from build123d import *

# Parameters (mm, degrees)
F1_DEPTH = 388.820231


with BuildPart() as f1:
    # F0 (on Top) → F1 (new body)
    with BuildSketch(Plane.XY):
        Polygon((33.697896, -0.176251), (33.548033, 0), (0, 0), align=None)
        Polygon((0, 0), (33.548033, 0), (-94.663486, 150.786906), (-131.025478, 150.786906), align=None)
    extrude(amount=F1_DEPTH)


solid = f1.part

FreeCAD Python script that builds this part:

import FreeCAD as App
import Part
import Sketcher

V = App.Vector
Q = App.Units.Quantity

doc = App.newDocument("Part")
params = doc.addObject("Spreadsheet::Sheet", "Params")
for row, (alias, value) in enumerate([
    ("pad1_length", "388.820231 mm"),
], start=1):
    params.set(f"A{row}", alias)
    params.set(f"B{row}", "=" + value)
    params.setAlias(f"B{row}", alias)

body = doc.addObject("PartDesign::Body", "Body")

# Sketch on XY plane
sketch1 = body.newObject("Sketcher::SketchObject", "Sketch")
sketch1.AttachmentSupport = (doc.getObject("XY_Plane"), [""])
sketch1.MapMode = "FlatFace"
sketch1.addGeometry(Part.LineSegment(V(33.697896, -0.176251, 0), V(33.548033, 0, 0)), False)
sketch1.addGeometry(Part.LineSegment(V(33.548033, 0, 0), V(-94.663486, 150.786906, 0)), False)
sketch1.addGeometry(Part.LineSegment(V(-94.663486, 150.786906, 0), V(-131.025478, 150.786906, 0)), False)
sketch1.addGeometry(Part.LineSegment(V(-131.025478, 150.786906, 0), V(0, 0, 0)), False)
sketch1.addGeometry(Part.LineSegment(V(0, 0, 0), V(33.697896, -0.176251, 0)), False)
sketch1.addConstraint(Sketcher.Constraint("Coincident", 0, 2, 1, 1))
sketch1.addConstraint(Sketcher.Constraint("Coincident", 1, 2, 2, 1))
sketch1.addConstraint(Sketcher.Constraint("Coincident", 2, 2, 3, 1))
sketch1.addConstraint(Sketcher.Constraint("Coincident", 3, 2, 4, 1))
sketch1.addConstraint(Sketcher.Constraint("Coincident", 4, 2, 0, 1))
sketch1.addConstraint(Sketcher.Constraint("Horizontal", 2))
sketch1.addConstraint(Sketcher.Constraint("Coincident", 3, 2, -1, 1))
sketch1.addConstraint(Sketcher.Constraint("PointOnObject", 0, 2, -1))
sketch1.addConstraint(Sketcher.Constraint("Parallel", 0, 1))
sketch1.addConstraint(Sketcher.Constraint("DistanceX", 2, 2, 2, 1, Q("36.361992 mm")))
sketch1.addConstraint(Sketcher.Constraint("Distance", 0, Q("0.231351 mm")))
sketch1.addConstraint(Sketcher.Constraint("DistanceX", 2, 2, -1, 1, Q("131.025478 mm")))
sketch1.addConstraint(Sketcher.Constraint("DistanceX", 1, 2, 0, 2, Q("128.211519 mm")))
sketch1.addConstraint(Sketcher.Constraint("Distance", 1, Q("197.926463 mm")))
pad1 = body.newObject("PartDesign::Pad", "Pad")
pad1.Profile = sketch1
pad1.setExpression("Length", "Params.pad1_length")

doc.recompute()
